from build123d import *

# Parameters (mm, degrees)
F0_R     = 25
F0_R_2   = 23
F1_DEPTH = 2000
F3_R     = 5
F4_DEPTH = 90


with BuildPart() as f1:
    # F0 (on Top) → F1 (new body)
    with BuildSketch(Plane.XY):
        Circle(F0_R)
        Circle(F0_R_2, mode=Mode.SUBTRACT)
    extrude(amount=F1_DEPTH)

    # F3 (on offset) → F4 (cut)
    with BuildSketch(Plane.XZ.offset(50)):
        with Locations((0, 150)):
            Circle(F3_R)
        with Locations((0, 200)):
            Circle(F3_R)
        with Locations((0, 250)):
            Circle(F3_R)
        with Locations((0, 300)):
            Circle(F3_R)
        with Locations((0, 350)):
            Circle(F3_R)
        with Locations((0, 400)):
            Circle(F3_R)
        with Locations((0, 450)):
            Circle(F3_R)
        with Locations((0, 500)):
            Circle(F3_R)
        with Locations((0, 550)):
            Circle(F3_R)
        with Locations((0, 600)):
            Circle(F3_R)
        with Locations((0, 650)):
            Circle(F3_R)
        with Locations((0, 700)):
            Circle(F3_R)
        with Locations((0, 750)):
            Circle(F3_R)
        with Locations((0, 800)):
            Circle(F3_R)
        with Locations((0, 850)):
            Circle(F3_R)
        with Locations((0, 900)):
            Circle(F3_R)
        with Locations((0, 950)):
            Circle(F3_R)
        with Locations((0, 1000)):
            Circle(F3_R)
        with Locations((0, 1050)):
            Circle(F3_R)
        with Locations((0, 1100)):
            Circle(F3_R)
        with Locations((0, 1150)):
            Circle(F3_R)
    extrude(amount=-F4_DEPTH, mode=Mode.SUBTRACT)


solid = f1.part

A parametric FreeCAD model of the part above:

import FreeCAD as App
import Part
import Sketcher
from FreeCAD import Vector
Q = App.Units.Quantity

doc = App.newDocument("Part")
body = doc.addObject("PartDesign::Body", "Body")

# Sketch on XY plane
sketch1 = body.newObject("Sketcher::SketchObject", "Sketch")
sketch1.AttachmentSupport = (doc.getObject("XY_Plane"), [""])
sketch1.MapMode = "FlatFace"
sketch1.addGeometry([
    Part.Circle(Vector(0, 0, 0), Vector(0, 0, 1), 25),
    Part.Circle(Vector(0, 0, 0), Vector(0, 0, 1), 23),
], False)
sketch1.addConstraint([
    Sketcher.Constraint("Coincident", 0, 3, -1, 1),
    Sketcher.Constraint("Coincident", 1, 3, -1, 1),
    Sketcher.Constraint("Diameter", 0, Q("50 mm")),
    Sketcher.Constraint("Diameter", 1, Q("46 mm")),
])
pad1 = body.newObject("PartDesign::Pad", "Pad")
pad1.Profile = sketch1
pad1.Length = 2000

# Sketch on XZ plane
sketch2 = body.newObject("Sketcher::SketchObject", "Sketch001")
sketch2.AttachmentSupport = (doc.getObject("XZ_Plane"), [""])
sketch2.MapMode = "FlatFace"
sketch2.AttachmentOffset = App.Placement(Vector(0, 0, 50), App.Rotation())
sketch2.addGeometry([
    Part.Circle(Vector(0, 150, 0), Vector(0, 0, 1), 5),  # 0
    Part.Circle(Vector(0, 200, 0), Vector(0, 0, 1), 5),  # 1
    Part.Circle(Vector(0, 250, 0), Vector(0, 0, 1), 5),  # 2
    Part.Circle(Vector(0, 300, 0), Vector(0, 0, 1), 5),  # 3
    Part.Circle(Vector(0, 350, 0), Vector(0, 0, 1), 5),  # 4
    Part.Circle(Vector(0, 400, 0), Vector(0, 0, 1), 5),  # 5
    Part.Circle(Vector(0, 450, 0), Vector(0, 0, 1), 5),  # 6
    Part.Circle(Vector(0, 500, 0), Vector(0, 0, 1), 5),  # 7
    Part.Circle(Vector(0, 550, 0), Vector(0, 0, 1), 5),  # 8
    Part.Circle(Vector(0, 600, 0), Vector(0, 0, 1), 5),  # 9
    Part.Circle(Vector(0, 650, 0), Vector(0, 0, 1), 5),  # 10
    Part.Circle(Vector(0, 700, 0), Vector(0, 0, 1), 5),  # 11
    Part.Circle(Vector(0, 750, 0), Vector(0, 0, 1), 5),  # 12
    Part.Circle(Vector(0, 800, 0), Vector(0, 0, 1), 5),  # 13
    Part.Circle(Vector(0, 850, 0), Vector(0, 0, 1), 5),  # 14
    Part.Circle(Vector(0, 900, 0), Vector(0, 0, 1), 5),  # 15
    Part.Circle(Vector(0, 950, 0), Vector(0, 0, 1), 5),  # 16
    Part.Circle(Vector(0, 1000, 0), Vector(0, 0, 1), 5),  # 17
    Part.Circle(Vector(0, 1050, 0), Vector(0, 0, 1), 5),  # 18
    Part.Circle(Vector(0, 1100, 0), Vector(0, 0, 1), 5),  # 19
    Part.Circle(Vector(0, 1150, 0), Vector(0, 0, 1), 5),  # 20
], False)
sketch2.addConstraint([
    Sketcher.Constraint("Equal", 0, 1),
    Sketcher.Constraint("Equal", 1, 2),
    Sketcher.Constraint("Equal", 2, 3),
    Sketcher.Constraint("Equal", 3, 4),
    Sketcher.Constraint("Equal", 4, 5),
    Sketcher.Constraint("Equal", 5, 6),
    Sketcher.Constraint("Equal", 6, 7),
    Sketcher.Constraint("Equal", 7, 8),
    Sketcher.Constraint("Equal", 8, 9),
    Sketcher.Constraint("Equal", 9, 10),
    Sketcher.Constraint("Equal", 10, 11),
    Sketcher.Constraint("Equal", 11, 12),
    Sketcher.Constraint("Equal", 12, 13),
    Sketcher.Constraint("Equal", 13, 14),
    Sketcher.Constraint("Equal", 14, 15),
    Sketcher.Constraint("Equal", 15, 16),
    Sketcher.Constraint("Equal", 16, 17),
    Sketcher.Constraint("Equal", 17, 18),
    Sketcher.Constraint("Equal", 18, 19),
    Sketcher.Constraint("Equal", 19, 20),
    Sketcher.Constraint("PointOnObject", 0, 3, -2),
    Sketcher.Constraint("PointOnObject", 1, 3, -2),
    Sketcher.Constraint("PointOnObject", 2, 3, -2),
    Sketcher.Constraint("PointOnObject", 3, 3, -2),
    Sketcher.Constraint("PointOnObject", 4, 3, -2),
    Sketcher.Constraint("PointOnObject", 5, 3, -2),
    Sketcher.Constraint("PointOnObject", 6, 3, -2),
    Sketcher.Constraint("PointOnObject", 7, 3, -2),
    Sketcher.Constraint("PointOnObject", 8, 3, -2),
    Sketcher.Constraint("PointOnObject", 9, 3, -2),
    Sketcher.Constraint("PointOnObject", 10, 3, -2),
    Sketcher.Constraint("PointOnObject", 11, 3, -2),
    Sketcher.Constraint("PointOnObject", 12, 3, -2),
    Sketcher.Constraint("PointOnObject", 13, 3, -2),
    Sketcher.Constraint("PointOnObject", 14, 3, -2),
    Sketcher.Constraint("PointOnObject", 15, 3, -2),
    Sketcher.Constraint("PointOnObject", 16, 3, -2),
    Sketcher.Constraint("PointOnObject", 17, 3, -2),
    Sketcher.Constraint("PointOnObject", 18, 3, -2),
    Sketcher.Constraint("PointOnObject", 19, 3, -2),
    Sketcher.Constraint("PointOnObject", 20, 3, -2),
    Sketcher.Constraint("Diameter", 0, Q("10 mm")),
    Sketcher.Constraint("DistanceY", -1, 1, 0, 3, Q("150 mm")),
    Sketcher.Constraint("DistanceY", -1, 1, 1, 3, Q("200 mm")),
    Sketcher.Constraint("DistanceY", -1, 1, 2, 3, Q("250 mm")),
    Sketcher.Constraint("DistanceY", -1, 1, 3, 3, Q("300 mm")),
    Sketcher.Constraint("DistanceY", -1, 1, 4, 3, Q("350 mm")),
    Sketcher.Constraint("DistanceY", -1, 1, 5, 3, Q("400 mm")),
    Sketcher.Constraint("DistanceY", -1, 1, 6, 3, Q("450 mm")),
    Sketcher.Constraint("DistanceY", -1, 1, 7, 3, Q("500 mm")),
    Sketcher.Constraint("DistanceY", -1, 1, 8, 3, Q("550 mm")),
    Sketcher.Constraint("DistanceY", -1, 1, 9, 3, Q("600 mm")),
    Sketcher.Constraint("DistanceY", -1, 1, 10, 3, Q("650 mm")),
    Sketcher.Constraint("DistanceY", -1, 1, 11, 3, Q("700 mm")),
    Sketcher.Constraint("DistanceY", -1, 1, 12, 3, Q("750 mm")),
    Sketcher.Constraint("DistanceY", -1, 1, 13, 3, Q("800 mm")),
    Sketcher.Constraint("DistanceY", -1, 1, 14, 3, Q("850 mm")),
    Sketcher.Constraint("DistanceY", -1, 1, 15, 3, Q("900 mm")),
    Sketcher.Constraint("DistanceY", -1, 1, 16, 3, Q("950 mm")),
    Sketcher.Constraint("DistanceY", -1, 1, 17, 3, Q("1000 mm")),
    Sketcher.Constraint("DistanceY", -1, 1, 18, 3, Q("1050 mm")),
    Sketcher.Constraint("DistanceY", -1, 1, 19, 3, Q("1100 mm")),
    Sketcher.Constraint("DistanceY", -1, 1, 20, 3, Q("1150 mm")),
])
pocket1 = body.newObject("PartDesign::Pocket", "Pocket")
pocket1.Profile = sketch2
pocket1.Length = 90

doc.recompute()
